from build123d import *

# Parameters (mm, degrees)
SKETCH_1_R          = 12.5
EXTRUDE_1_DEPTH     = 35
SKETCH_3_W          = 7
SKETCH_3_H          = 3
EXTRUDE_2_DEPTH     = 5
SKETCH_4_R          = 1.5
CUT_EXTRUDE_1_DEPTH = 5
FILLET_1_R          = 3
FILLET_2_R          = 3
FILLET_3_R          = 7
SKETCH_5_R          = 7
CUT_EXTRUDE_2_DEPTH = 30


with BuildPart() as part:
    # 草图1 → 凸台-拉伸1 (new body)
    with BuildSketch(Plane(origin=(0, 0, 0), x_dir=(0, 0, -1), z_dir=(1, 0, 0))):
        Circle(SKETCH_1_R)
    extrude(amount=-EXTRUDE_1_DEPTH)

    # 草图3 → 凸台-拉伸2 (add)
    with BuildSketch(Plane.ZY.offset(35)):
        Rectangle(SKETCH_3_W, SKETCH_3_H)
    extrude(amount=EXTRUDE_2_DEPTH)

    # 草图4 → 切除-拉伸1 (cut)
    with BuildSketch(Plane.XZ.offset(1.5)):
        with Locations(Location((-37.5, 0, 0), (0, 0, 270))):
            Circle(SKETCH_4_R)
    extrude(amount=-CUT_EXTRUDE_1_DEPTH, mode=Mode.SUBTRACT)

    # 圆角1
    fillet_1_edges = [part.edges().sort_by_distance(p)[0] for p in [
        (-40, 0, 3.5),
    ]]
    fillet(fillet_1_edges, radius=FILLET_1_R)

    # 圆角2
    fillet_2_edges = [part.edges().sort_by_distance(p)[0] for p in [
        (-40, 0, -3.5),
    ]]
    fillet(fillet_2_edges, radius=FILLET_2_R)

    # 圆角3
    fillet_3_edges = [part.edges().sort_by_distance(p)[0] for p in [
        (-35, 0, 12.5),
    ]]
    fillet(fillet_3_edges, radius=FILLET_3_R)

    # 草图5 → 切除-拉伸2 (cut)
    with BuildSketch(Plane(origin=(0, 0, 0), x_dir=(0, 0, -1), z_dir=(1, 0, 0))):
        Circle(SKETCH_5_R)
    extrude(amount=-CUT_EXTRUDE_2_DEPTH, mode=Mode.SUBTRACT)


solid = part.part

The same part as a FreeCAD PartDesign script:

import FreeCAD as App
import Part
import Sketcher

V = App.Vector


def edges_at(feature, points):
    """Names of the edges that pass closest to the given points."""
    edges = feature.Shape.Edges
    near = lambda p: min(range(len(edges)), key=lambda i: edges[i].distToShape(Part.Vertex(*p))[0])
    return sorted({f"Edge{near(p) + 1}" for p in points})

doc = App.newDocument("Part")
body = doc.addObject("PartDesign::Body", "Body")

# Sketch on YZ plane
sketch1 = body.newObject("Sketcher::SketchObject", "Sketch")
sketch1.AttachmentSupport = (doc.getObject("YZ_Plane"), [""])
sketch1.MapMode = "FlatFace"
sketch1.addGeometry(Part.Circle(V(0, 0, 0), V(0, 0, 1), 12), False)
sketch1.addConstraint(Sketcher.Constraint("Coincident", 0, 3, -1, 1))
sketch1.addConstraint(Sketcher.Constraint("Diameter", 0, 25.0))
pad1 = body.newObject("PartDesign::Pad", "Pad")
pad1.Profile = sketch1
pad1.Length = 35
pad1.Reversed = True

# Sketch on YZ plane
sketch2 = body.newObject("Sketcher::SketchObject", "Sketch001")
sketch2.AttachmentSupport = (doc.getObject("YZ_Plane"), [""])
sketch2.MapMode = "FlatFace"
sketch2.AttachmentOffset = App.Placement(V(0, 0, -35), App.Rotation())
sketch2.addGeometry(Part.LineSegment(V(1.5, -3.5, 0), V(-1.5, -3.5, 0)), False)
sketch2.addGeometry(Part.LineSegment(V(-1.5, -3.5, 0), V(-1.5, 3.5, 0)), False)
sketch2.addGeometry(Part.LineSegment(V(-1.5, 3.5, 0), V(1.5, 3.5, 0)), False)
sketch2.addGeometry(Part.LineSegment(V(1.5, 3.5, 0), V(1.5, -3.5, 0)), False)
sketch2.addConstraint(Sketcher.Constraint("Coincident", 0, 2, 1, 1))
sketch2.addConstraint(Sketcher.Constraint("Coincident", 1, 2, 2, 1))
sketch2.addConstraint(Sketcher.Constraint("Coincident", 2, 2, 3, 1))
sketch2.addConstraint(Sketcher.Constraint("Coincident", 3, 2, 0, 1))
sketch2.addConstraint(Sketcher.Constraint("Horizontal", 0))
sketch2.addConstraint(Sketcher.Constraint("Vertical", 1))
sketch2.addConstraint(Sketcher.Constraint("Horizontal", 2))
sketch2.addConstraint(Sketcher.Constraint("Vertical", 3))
sketch2.addConstraint(Sketcher.Constraint("Symmetric", 0, 2, 2, 2, -1, 1))
sketch2.addConstraint(Sketcher.Constraint("DistanceX", 0, 2, 0, 1, 3.0))
sketch2.addConstraint(Sketcher.Constraint("DistanceY", 1, 1, 1, 2, 7.0))
pad2 = body.newObject("PartDesign::Pad", "Pad001")
pad2.Profile = sketch2
pad2.Length = 5
pad2.Reversed = True

# Sketch on XZ plane
sketch3 = body.newObject("Sketcher::SketchObject", "Sketch002")
sketch3.AttachmentSupport = (doc.getObject("XZ_Plane"), [""])
sketch3.MapMode = "FlatFace"
sketch3.AttachmentOffset = App.Placement(V(0, 0, 1.5), App.Rotation())
sketch3.addGeometry(Part.Circle(V(-37.5, 0, 0), V(0, 0, 1), 1.5), False)
sketch3.addConstraint(Sketcher.Constraint("PointOnObject", 0, 3, -1))
sketch3.addConstraint(Sketcher.Constraint("Diameter", 0, 3.0))
sketch3.addConstraint(Sketcher.Constraint("DistanceX", 0, 3, -1, 1, 37.5))
pocket1 = body.newObject("PartDesign::Pocket", "Pocket")
pocket1.Profile = sketch3
pocket1.Length = 5
doc.recompute()

fillet = body.newObject("PartDesign::Fillet", "Fillet")
fillet.Base = (pocket1, edges_at(pocket1, [(-40, 0, 3.5)]))
fillet.Radius = 3
doc.recompute()

fillet2 = body.newObject("PartDesign::Fillet", "Fillet001")
fillet2.Base = (fillet, edges_at(fillet, [(-40, 0, -3.5)]))
fillet2.Radius = 3
doc.recompute()

fillet3 = body.newObject("PartDesign::Fillet", "Fillet002")
fillet3.Base = (fillet2, edges_at(fillet2, [(-35, 0, 12.5)]))
fillet3.Radius = 7

# Sketch on YZ plane
sketch4 = body.newObject("Sketcher::SketchObject", "Sketch003")
sketch4.AttachmentSupport = (doc.getObject("YZ_Plane"), [""])
sketch4.MapMode = "FlatFace"
sketch4.addGeometry(Part.Circle(V(0, 0, 0), V(0, 0, 1), 7), False)
sketch4.addConstraint(Sketcher.Constraint("Coincident", 0, 3, -1, 1))
sketch4.addConstraint(Sketcher.Constraint("Diameter", 0, 14.0))
pocket2 = body.newObject("PartDesign::Pocket", "Pocket001")
pocket2.Profile = sketch4
pocket2.Length = 30

doc.recompute()
